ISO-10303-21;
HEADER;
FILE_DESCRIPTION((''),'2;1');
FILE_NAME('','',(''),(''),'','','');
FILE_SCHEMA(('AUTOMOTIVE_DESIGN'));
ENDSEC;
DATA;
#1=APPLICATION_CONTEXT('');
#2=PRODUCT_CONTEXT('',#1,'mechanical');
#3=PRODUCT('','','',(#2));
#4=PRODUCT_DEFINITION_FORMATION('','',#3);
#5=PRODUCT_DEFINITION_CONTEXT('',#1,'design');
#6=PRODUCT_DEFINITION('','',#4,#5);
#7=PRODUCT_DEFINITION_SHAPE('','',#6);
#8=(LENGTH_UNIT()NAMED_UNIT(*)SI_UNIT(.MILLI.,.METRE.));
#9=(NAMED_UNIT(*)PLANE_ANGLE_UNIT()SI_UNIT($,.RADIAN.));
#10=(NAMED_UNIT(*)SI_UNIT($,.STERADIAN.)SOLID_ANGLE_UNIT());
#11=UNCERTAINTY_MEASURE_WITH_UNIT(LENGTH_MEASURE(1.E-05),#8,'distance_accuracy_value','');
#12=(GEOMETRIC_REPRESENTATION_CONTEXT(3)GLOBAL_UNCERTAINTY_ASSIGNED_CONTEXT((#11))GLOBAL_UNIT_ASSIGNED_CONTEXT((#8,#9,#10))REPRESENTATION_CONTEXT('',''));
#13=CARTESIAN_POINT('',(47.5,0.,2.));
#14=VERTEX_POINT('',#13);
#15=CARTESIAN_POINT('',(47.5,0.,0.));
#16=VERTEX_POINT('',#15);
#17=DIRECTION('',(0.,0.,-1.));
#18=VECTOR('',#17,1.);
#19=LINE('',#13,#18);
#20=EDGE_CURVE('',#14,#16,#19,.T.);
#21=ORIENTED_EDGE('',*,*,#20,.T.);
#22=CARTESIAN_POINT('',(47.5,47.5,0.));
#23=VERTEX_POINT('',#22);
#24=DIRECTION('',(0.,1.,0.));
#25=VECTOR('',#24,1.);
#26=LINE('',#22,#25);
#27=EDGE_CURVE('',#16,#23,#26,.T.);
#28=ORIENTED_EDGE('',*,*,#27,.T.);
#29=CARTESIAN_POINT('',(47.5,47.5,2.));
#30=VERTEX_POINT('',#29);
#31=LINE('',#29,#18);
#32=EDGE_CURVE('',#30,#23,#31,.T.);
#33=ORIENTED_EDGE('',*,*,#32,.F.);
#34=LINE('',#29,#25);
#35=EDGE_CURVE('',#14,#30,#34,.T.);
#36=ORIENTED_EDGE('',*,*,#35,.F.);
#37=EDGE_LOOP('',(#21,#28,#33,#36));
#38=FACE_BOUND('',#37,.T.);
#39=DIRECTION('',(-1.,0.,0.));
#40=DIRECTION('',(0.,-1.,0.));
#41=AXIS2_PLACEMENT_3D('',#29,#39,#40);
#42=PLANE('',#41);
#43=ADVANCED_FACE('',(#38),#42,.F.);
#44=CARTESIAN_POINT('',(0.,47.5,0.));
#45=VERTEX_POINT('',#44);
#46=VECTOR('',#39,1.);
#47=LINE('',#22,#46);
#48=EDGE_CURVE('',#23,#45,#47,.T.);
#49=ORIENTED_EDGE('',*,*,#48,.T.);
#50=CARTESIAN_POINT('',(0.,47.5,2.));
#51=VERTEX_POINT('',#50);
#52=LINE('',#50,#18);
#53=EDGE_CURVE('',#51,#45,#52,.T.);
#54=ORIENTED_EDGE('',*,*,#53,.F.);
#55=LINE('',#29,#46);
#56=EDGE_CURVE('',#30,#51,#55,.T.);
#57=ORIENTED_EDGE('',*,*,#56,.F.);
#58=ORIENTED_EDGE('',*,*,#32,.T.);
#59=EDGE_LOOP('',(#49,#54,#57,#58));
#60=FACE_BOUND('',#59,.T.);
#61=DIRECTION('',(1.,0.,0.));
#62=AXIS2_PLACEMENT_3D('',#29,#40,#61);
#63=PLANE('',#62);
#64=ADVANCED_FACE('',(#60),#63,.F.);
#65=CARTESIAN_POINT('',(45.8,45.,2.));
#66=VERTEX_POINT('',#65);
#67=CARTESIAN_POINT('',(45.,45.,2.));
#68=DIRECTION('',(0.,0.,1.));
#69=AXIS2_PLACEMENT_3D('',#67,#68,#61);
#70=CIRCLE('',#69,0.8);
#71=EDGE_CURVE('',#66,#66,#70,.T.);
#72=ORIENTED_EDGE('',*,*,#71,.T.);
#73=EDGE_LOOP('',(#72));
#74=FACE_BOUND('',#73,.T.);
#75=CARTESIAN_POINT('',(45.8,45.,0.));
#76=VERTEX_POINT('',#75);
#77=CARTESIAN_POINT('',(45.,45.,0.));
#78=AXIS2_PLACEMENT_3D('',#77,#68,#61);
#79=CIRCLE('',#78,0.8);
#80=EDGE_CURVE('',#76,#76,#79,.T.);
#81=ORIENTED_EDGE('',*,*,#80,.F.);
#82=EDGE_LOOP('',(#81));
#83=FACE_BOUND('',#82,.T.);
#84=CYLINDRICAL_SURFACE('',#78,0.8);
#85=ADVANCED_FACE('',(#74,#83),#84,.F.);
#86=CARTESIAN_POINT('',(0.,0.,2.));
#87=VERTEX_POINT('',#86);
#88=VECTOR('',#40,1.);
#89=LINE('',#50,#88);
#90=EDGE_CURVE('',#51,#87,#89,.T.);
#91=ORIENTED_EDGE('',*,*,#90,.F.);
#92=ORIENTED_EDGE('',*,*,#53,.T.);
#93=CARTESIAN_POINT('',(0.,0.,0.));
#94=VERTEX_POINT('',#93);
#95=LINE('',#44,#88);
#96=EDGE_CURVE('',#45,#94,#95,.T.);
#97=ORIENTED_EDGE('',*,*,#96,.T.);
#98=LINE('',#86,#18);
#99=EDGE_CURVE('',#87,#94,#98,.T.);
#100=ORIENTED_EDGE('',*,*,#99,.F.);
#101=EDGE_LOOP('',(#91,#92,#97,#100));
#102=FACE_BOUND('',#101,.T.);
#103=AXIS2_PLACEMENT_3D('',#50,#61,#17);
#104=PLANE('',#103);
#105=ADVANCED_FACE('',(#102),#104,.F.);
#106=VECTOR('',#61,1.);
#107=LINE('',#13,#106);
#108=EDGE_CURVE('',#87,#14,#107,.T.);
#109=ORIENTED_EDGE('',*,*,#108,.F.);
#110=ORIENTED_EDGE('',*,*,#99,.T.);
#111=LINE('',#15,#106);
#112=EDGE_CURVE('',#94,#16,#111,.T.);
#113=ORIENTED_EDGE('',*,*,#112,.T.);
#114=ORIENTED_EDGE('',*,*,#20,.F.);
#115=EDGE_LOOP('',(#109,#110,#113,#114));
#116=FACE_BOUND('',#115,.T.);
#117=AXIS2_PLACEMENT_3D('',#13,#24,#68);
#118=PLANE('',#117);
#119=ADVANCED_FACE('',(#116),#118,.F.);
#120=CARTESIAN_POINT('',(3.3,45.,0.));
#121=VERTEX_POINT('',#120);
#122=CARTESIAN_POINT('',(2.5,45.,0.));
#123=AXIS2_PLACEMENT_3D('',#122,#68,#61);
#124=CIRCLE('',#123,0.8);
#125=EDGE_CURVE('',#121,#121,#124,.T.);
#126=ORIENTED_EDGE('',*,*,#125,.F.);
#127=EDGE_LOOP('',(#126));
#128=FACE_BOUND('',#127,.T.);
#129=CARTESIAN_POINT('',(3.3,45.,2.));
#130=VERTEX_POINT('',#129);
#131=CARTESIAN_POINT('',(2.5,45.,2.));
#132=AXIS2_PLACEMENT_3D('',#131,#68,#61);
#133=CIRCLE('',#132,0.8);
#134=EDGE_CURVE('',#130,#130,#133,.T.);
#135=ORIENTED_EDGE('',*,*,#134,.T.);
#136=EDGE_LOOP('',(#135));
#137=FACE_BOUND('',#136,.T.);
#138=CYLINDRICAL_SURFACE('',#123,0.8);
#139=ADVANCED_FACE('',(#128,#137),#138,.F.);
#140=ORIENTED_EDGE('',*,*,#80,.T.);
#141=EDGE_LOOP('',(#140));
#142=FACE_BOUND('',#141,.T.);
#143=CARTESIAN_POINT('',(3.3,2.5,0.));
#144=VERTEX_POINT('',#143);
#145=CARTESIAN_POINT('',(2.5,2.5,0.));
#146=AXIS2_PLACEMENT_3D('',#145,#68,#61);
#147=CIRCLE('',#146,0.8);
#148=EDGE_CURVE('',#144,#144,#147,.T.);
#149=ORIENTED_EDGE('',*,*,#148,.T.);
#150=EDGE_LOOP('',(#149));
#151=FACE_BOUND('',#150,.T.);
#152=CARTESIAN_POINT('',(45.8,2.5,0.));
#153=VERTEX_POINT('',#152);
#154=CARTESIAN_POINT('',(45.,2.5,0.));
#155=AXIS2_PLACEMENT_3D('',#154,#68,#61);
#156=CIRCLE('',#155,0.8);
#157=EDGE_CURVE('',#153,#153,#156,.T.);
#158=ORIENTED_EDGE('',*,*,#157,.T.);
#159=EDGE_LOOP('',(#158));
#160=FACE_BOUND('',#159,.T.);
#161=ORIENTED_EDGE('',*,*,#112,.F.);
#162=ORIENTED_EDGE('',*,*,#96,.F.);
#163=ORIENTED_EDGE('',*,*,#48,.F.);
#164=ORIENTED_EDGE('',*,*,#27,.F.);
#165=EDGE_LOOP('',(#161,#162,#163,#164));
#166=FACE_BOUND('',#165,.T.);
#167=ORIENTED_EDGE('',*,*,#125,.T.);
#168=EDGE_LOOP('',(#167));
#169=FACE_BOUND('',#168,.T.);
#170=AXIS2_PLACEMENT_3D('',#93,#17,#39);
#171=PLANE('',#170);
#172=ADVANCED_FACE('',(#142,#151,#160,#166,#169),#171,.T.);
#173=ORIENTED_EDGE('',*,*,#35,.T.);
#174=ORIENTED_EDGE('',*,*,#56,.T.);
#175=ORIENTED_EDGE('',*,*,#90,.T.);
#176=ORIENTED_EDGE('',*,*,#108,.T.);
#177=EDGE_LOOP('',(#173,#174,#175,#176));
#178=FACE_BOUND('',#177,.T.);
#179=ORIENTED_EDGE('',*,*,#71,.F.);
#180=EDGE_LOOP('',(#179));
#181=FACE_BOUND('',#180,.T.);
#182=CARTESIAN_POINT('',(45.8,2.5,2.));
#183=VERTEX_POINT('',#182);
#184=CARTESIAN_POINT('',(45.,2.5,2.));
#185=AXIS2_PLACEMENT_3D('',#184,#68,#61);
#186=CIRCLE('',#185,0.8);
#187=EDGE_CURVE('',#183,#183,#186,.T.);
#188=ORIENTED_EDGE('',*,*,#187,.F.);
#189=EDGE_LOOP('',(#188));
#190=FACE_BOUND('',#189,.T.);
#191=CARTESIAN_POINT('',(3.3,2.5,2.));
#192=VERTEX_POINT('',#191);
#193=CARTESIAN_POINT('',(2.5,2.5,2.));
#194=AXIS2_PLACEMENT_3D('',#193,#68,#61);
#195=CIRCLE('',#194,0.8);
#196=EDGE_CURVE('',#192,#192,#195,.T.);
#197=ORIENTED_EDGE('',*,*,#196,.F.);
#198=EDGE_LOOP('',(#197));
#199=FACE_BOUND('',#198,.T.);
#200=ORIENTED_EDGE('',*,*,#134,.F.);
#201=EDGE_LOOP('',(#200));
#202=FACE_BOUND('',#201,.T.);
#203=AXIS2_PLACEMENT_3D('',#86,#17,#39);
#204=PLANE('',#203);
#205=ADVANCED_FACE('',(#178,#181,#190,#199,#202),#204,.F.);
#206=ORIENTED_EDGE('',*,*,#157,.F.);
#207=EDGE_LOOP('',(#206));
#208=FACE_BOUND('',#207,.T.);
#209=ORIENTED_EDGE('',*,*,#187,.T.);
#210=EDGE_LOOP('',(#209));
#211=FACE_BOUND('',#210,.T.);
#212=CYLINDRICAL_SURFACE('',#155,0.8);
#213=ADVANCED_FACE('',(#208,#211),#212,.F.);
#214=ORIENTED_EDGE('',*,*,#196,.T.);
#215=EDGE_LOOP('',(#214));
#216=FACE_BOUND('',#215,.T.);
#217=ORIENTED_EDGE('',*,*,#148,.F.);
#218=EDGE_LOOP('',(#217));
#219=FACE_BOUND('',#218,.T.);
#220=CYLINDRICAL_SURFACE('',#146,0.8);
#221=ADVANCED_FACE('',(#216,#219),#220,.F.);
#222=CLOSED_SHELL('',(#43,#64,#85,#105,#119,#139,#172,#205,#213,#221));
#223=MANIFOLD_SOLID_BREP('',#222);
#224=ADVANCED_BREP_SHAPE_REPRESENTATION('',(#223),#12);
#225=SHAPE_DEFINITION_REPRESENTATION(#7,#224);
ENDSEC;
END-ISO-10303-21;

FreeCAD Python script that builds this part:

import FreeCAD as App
import Part
import Sketcher


def add_polygon(sketch, points):
    """Adds a closed chain of lines whose ends are joined by coincident constraints."""
    first, n = sketch.GeometryCount, len(points)
    for a, b in zip(points, points[1:] + points[:1]):
        sketch.addGeometry(Part.LineSegment(App.Vector(*a, 0), App.Vector(*b, 0)), False)
    for i in range(n):
        sketch.addConstraint(Sketcher.Constraint("Coincident", first + i, 2, first + (i + 1) % n, 1))

doc = App.newDocument("Part")
body = doc.addObject("PartDesign::Body", "Body")

# Sketch on XY plane
sketch1 = body.newObject("Sketcher::SketchObject", "Sketch")
sketch1.AttachmentSupport = (doc.getObject("XY_Plane"), [""])
sketch1.MapMode = "FlatFace"
add_polygon(sketch1, [(0, 48), (0, 0), (48, 0), (48, 48)])  # lines 0-3
sketch1.addConstraint([
    Sketcher.Constraint("Vertical", 0),
    Sketcher.Constraint("Horizontal", 1),
    Sketcher.Constraint("Vertical", 2),
    Sketcher.Constraint("Horizontal", 3),
    Sketcher.Constraint("Coincident", 0, 2, -1, 1),
    Sketcher.Constraint("Equal", 3, 0),
    Sketcher.Constraint("DistanceX", 1, 1, 1, 2, 47.5),
])
pad1 = body.newObject("PartDesign::Pad", "Pad")
pad1.Profile = sketch1
pad1.Length = 2

# Sketch on XY plane
sketch2 = body.newObject("Sketcher::SketchObject", "Sketch001")
sketch2.AttachmentSupport = (doc.getObject("XY_Plane"), [""])
sketch2.MapMode = "FlatFace"
sketch2.AttachmentOffset = App.Placement(App.Vector(0, 0, 2), App.Rotation())
sketch2.addGeometry([
    Part.Circle(App.Vector(2.5, 2.5, 0), App.Vector(0, 0, 1), 0.8),
    Part.Circle(App.Vector(2.5, 45, 0), App.Vector(0, 0, 1), 0.8),
    Part.Circle(App.Vector(45, 45, 0), App.Vector(0, 0, 1), 0.8),
    Part.Circle(App.Vector(45, 2.5, 0), App.Vector(0, 0, 1), 0.8),
], False)
sketch2.addConstraint([
    Sketcher.Constraint("Equal", 0, 1),
    Sketcher.Constraint("Equal", 1, 2),
    Sketcher.Constraint("Equal", 2, 3),
    Sketcher.Constraint("Horizontal", 1, 3, 2, 3),
    Sketcher.Constraint("Horizontal", 0, 3, 3, 3),
    Sketcher.Constraint("Vertical", 0, 3, 1, 3),
    Sketcher.Constraint("Vertical", 2, 3, 3, 3),
    Sketcher.Constraint("Diameter", 0, 1.6),
    Sketcher.Constraint("DistanceY", -1, 1, 1, 3, 45.0),
    Sketcher.Constraint("DistanceX", -1, 1, 2, 3, 45.0),
    Sketcher.Constraint("DistanceX", -1, 1, 0, 3, 2.5),
    Sketcher.Constraint("DistanceY", -1, 1, 0, 3, 2.5),
])
pocket1 = body.newObject("PartDesign::Pocket", "Pocket")
pocket1.Profile = sketch2
pocket1.Length = 2

doc.recompute()
